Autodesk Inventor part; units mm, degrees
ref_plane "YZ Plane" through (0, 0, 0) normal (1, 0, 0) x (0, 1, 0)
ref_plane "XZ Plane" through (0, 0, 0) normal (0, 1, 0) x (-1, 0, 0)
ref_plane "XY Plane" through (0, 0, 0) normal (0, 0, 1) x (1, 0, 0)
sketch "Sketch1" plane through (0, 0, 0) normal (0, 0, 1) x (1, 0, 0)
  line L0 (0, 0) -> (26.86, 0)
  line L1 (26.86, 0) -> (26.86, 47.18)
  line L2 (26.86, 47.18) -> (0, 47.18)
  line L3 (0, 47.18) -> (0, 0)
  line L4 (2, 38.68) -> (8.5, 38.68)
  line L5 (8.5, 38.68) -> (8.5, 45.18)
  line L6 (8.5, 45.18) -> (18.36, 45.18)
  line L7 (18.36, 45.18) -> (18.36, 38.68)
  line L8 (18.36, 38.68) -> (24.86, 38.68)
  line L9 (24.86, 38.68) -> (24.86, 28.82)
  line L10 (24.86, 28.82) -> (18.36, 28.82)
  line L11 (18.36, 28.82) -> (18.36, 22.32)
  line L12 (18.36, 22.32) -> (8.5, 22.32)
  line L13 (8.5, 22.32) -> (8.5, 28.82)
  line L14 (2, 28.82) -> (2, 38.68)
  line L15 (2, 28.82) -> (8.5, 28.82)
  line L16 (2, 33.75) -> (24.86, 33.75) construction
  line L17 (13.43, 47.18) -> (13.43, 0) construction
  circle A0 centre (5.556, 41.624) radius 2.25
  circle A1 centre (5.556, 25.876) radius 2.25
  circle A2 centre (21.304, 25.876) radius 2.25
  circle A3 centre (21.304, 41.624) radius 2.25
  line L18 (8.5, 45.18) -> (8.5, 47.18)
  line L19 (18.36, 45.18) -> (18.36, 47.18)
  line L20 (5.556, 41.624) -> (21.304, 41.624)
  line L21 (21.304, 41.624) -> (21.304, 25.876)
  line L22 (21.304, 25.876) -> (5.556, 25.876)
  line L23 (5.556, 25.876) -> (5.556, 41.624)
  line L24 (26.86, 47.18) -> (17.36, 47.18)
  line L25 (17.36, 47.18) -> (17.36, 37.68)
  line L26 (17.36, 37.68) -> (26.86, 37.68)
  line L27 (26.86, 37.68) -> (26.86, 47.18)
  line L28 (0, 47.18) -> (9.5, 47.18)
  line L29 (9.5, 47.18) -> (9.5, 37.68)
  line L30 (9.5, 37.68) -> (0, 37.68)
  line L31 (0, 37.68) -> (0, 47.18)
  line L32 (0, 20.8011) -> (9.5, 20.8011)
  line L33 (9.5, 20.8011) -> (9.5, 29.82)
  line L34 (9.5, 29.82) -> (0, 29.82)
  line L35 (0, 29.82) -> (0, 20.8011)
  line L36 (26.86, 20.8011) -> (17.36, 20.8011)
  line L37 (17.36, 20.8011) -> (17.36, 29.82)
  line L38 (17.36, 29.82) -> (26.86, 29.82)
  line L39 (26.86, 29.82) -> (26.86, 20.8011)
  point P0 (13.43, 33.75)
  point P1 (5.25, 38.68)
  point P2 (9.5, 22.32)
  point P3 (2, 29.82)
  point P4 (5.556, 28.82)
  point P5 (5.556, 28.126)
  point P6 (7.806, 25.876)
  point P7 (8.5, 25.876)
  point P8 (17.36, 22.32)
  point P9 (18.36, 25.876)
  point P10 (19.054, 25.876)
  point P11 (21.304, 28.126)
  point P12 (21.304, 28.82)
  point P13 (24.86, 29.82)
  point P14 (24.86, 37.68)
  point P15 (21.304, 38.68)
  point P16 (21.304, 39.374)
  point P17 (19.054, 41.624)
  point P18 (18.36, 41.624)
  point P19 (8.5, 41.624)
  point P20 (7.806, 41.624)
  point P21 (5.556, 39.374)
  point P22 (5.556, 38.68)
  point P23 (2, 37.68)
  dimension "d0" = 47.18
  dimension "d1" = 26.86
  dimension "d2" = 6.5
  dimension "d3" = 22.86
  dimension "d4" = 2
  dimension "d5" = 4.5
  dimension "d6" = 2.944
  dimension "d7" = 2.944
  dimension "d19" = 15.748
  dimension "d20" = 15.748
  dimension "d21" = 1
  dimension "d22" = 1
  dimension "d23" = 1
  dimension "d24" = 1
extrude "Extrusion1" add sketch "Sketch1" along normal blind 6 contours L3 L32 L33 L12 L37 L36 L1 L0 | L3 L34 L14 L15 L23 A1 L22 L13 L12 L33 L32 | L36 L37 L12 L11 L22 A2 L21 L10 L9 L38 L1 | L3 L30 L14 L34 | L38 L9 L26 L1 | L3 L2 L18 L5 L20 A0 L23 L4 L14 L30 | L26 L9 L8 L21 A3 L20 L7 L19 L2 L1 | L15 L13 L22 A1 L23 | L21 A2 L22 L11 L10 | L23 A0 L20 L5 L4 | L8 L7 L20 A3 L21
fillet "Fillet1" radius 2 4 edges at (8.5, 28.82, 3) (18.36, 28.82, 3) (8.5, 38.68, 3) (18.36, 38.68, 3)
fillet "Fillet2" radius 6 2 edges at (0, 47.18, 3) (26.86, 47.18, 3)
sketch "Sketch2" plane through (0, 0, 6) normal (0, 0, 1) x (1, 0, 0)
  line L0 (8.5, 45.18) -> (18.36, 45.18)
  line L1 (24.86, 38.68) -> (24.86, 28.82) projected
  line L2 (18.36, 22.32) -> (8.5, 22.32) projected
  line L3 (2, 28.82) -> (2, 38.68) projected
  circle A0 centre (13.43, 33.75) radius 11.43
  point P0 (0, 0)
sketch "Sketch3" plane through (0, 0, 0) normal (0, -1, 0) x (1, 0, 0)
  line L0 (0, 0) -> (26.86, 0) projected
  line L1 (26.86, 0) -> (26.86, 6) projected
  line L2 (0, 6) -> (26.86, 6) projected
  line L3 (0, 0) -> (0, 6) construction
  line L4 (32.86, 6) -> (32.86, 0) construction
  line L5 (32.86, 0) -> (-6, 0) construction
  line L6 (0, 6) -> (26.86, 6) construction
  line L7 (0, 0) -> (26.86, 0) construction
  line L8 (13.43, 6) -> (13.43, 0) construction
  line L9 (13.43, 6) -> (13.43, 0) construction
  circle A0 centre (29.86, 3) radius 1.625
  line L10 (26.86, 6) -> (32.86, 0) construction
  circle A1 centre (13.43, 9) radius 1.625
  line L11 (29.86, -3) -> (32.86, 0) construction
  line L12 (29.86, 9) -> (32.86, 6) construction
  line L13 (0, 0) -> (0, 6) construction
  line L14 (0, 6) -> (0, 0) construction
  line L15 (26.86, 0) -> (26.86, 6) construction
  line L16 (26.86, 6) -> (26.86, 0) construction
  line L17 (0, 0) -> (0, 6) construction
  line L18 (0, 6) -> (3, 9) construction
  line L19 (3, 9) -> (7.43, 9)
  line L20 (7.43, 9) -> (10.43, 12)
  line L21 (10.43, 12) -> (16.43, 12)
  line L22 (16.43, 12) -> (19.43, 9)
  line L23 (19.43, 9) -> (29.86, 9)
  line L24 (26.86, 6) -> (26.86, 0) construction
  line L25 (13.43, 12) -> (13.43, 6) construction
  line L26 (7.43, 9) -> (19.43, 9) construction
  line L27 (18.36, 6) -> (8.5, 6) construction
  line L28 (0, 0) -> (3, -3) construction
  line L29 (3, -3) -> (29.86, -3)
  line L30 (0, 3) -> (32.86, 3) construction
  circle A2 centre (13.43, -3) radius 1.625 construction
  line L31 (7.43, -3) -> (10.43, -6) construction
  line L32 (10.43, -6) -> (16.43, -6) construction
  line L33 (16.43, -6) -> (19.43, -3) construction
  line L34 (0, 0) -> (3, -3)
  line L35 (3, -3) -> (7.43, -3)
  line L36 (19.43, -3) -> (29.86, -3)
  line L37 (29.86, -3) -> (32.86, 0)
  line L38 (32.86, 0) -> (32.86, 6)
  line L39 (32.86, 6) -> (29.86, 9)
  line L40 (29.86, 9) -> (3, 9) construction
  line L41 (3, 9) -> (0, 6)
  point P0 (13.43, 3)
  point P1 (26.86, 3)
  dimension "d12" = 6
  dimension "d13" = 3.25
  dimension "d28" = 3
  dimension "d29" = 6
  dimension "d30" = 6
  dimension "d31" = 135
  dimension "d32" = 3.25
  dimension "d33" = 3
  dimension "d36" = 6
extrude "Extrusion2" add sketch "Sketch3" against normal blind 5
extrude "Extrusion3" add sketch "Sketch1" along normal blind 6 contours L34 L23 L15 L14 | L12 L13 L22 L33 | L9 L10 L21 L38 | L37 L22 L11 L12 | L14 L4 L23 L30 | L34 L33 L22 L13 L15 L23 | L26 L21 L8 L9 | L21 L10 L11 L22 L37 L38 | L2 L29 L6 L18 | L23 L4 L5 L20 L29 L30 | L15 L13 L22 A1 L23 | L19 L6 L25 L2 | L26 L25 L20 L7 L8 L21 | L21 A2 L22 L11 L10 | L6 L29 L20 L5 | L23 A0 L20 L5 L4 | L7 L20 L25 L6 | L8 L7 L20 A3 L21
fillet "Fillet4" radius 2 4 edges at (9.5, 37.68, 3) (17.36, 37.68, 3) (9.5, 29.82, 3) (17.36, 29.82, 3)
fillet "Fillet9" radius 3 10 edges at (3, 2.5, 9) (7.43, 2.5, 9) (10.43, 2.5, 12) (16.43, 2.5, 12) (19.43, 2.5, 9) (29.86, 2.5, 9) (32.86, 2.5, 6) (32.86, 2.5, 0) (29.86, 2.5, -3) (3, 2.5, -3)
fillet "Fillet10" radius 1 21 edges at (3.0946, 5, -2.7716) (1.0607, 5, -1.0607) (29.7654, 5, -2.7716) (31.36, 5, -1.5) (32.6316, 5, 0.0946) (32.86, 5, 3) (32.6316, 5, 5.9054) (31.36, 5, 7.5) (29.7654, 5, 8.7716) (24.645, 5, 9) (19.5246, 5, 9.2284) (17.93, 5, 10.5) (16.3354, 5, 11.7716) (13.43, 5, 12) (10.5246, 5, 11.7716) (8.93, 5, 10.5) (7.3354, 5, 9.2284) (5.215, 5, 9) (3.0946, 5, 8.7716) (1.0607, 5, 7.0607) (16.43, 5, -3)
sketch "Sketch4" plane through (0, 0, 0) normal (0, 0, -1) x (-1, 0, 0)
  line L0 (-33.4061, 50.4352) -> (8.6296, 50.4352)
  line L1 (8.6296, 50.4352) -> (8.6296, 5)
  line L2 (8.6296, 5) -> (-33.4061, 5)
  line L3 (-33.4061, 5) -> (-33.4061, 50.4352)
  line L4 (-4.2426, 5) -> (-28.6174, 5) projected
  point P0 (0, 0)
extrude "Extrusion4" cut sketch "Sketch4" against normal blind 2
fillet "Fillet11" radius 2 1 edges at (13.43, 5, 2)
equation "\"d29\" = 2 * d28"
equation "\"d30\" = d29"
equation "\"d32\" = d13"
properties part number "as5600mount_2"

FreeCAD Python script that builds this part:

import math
import FreeCAD as App
import Part
import Sketcher


def edges_at(feature, points):
    """Names of the edges that pass closest to the given points."""
    edges = feature.Shape.Edges
    near = lambda p: min(range(len(edges)), key=lambda i: edges[i].distToShape(Part.Vertex(*p))[0])
    return sorted({f"Edge{near(p) + 1}" for p in points})

doc = App.newDocument("Part")
params = doc.addObject("Spreadsheet::Sheet", "Params")
for row, (alias, value) in enumerate([
    ("sketch1_diameter", "4.5 mm"),
    ("sketch1_width", "6.5 mm"),
    ("sketch1_width2", "26.86 mm"),
    ("sketch1_height", "47.18 mm"),
    ("pad1_length", "6 mm"),
    ("fillet_radius", "2 mm"),
    ("fillet2_radius", "6 mm"),
    ("sketch2_diameter", "3.25 mm"),
    ("sketch2_width", "6 mm"),
    ("sketch2_width2", "26.86 mm"),
    ("sketch2_width3", "10.43 mm"),
    ("pad2_length", "5 mm"),
    ("sketch3_width", "1 mm"),
    ("sketch3_radius", "2.25 mm"),
    ("sketch3_height", "9.5 mm"),
    ("pad3_length", "6 mm"),
    ("fillet3_radius", "2 mm"),
    ("fillet4_radius", "3 mm"),
    ("fillet5_radius", "1 mm"),
    ("pocket1_length", "2 mm"),
    ("fillet6_radius", "2 mm"),
], start=1):
    params.set(f"A{row}", alias)
    params.set(f"B{row}", "=" + value)
    params.setAlias(f"B{row}", alias)

body = doc.addObject("PartDesign::Body", "Body")

# Sketch on XY plane
sketch1 = body.newObject("Sketcher::SketchObject", "Sketch")
sketch1.AttachmentSupport = (doc.getObject("XY_Plane"), [""])
sketch1.MapMode = "FlatFace"
sketch1.addGeometry([
    Part.LineSegment(App.Vector(0, 0, 0), App.Vector(26.9, 0, 0)),  # 0
    Part.LineSegment(App.Vector(26.9, 0, 0), App.Vector(26.9, 47.2, 0)),  # 1
    Part.LineSegment(App.Vector(26.9, 47.2, 0), App.Vector(18.4, 47.2, 0)),  # 2
    Part.LineSegment(App.Vector(18.4, 47.2, 0), App.Vector(18.4, 38.7, 0)),  # 3
    Part.LineSegment(App.Vector(18.4, 38.7, 0), App.Vector(24.9, 38.7, 0)),  # 4
    Part.LineSegment(App.Vector(24.9, 38.7, 0), App.Vector(24.9, 28.8, 0)),  # 5
    Part.LineSegment(App.Vector(24.9, 28.8, 0), App.Vector(18.4, 28.8, 0)),  # 6
    Part.LineSegment(App.Vector(18.4, 28.8, 0), App.Vector(18.4, 22.3, 0)),  # 7
    Part.LineSegment(App.Vector(18.4, 22.3, 0), App.Vector(8.5, 22.3, 0)),  # 8
    Part.LineSegment(App.Vector(8.5, 22.3, 0), App.Vector(8.5, 28.8, 0)),  # 9
    Part.LineSegment(App.Vector(8.5, 28.8, 0), App.Vector(2, 28.8, 0)),  # 10
    Part.LineSegment(App.Vector(2, 28.8, 0), App.Vector(2, 38.7, 0)),  # 11
    Part.LineSegment(App.Vector(2, 38.7, 0), App.Vector(8.5, 38.7, 0)),  # 12
    Part.LineSegment(App.Vector(8.5, 38.7, 0), App.Vector(8.5, 47.2, 0)),  # 13
    Part.LineSegment(App.Vector(8.5, 47.2, 0), App.Vector(0, 47.2, 0)),  # 14
    Part.LineSegment(App.Vector(0, 47.2, 0), App.Vector(0, 0, 0)),  # 15
    Part.Circle(App.Vector(5.6, 25.9, 0), App.Vector(0, 0, 1), 2.2),  # 16
    Part.Circle(App.Vector(21.3, 25.9, 0), App.Vector(0, 0, 1), 2.2),  # 17
    Part.Circle(App.Vector(5.6, 41.6, 0), App.Vector(0, 0, 1), 2.2),  # 18
    Part.Circle(App.Vector(21.3, 41.6, 0), App.Vector(0, 0, 1), 2.2),  # 19
], False)
sketch1.addConstraint([
    Sketcher.Constraint("Coincident", 0, 2, 1, 1),
    Sketcher.Constraint("Coincident", 1, 2, 2, 1),
    Sketcher.Constraint("Coincident", 2, 2, 3, 1),
    Sketcher.Constraint("Coincident", 3, 2, 4, 1),
    Sketcher.Constraint("Coincident", 4, 2, 5, 1),
    Sketcher.Constraint("Coincident", 5, 2, 6, 1),
    Sketcher.Constraint("Coincident", 6, 2, 7, 1),
    Sketcher.Constraint("Coincident", 7, 2, 8, 1),
    Sketcher.Constraint("Coincident", 8, 2, 9, 1),
    Sketcher.Constraint("Coincident", 9, 2, 10, 1),
    Sketcher.Constraint("Coincident", 10, 2, 11, 1),
    Sketcher.Constraint("Coincident", 11, 2, 12, 1),
    Sketcher.Constraint("Coincident", 12, 2, 13, 1),
    Sketcher.Constraint("Coincident", 13, 2, 14, 1),
    Sketcher.Constraint("Coincident", 14, 2, 15, 1),
    Sketcher.Constraint("Coincident", 15, 2, 0, 1),
    Sketcher.Constraint("Horizontal", 0),
    Sketcher.Constraint("Vertical", 1),
    Sketcher.Constraint("Horizontal", 2),
    Sketcher.Constraint("Vertical", 3),
    Sketcher.Constraint("Horizontal", 4),
    Sketcher.Constraint("Vertical", 5),
    Sketcher.Constraint("Horizontal", 6),
    Sketcher.Constraint("Vertical", 7),
    Sketcher.Constraint("Horizontal", 8),
    Sketcher.Constraint("Vertical", 9),
    Sketcher.Constraint("Horizontal", 10),
    Sketcher.Constraint("Vertical", 11),
    Sketcher.Constraint("Horizontal", 12),
    Sketcher.Constraint("Vertical", 13),
    Sketcher.Constraint("Horizontal", 14),
    Sketcher.Constraint("Vertical", 15),
    Sketcher.Constraint("Coincident", 15, 2, -1, 1),
    Sketcher.Constraint("Equal", 16, 17),
    Sketcher.Constraint("Equal", 17, 18),
    Sketcher.Constraint("Equal", 18, 19),
    Sketcher.Constraint("Horizontal", 16, 3, 17, 3),
    Sketcher.Constraint("Horizontal", 18, 3, 19, 3),
    Sketcher.Constraint("Horizontal", 6, 2, 9, 2),
    Sketcher.Constraint("Horizontal", 4, 2, 11, 2),
    Sketcher.Constraint("Horizontal", 2, 2, 13, 2),
    Sketcher.Constraint("Vertical", 16, 3, 18, 3),
    Sketcher.Constraint("Vertical", 17, 3, 19, 3),
    Sketcher.Constraint("Vertical", 3, 2, 6, 2),
    Sketcher.Constraint("Vertical", 9, 2, 12, 2),
    Sketcher.Constraint("Equal", 6, 10),
    Sketcher.Constraint("Equal", 2, 14),
    Sketcher.Constraint("Equal", 14, 3),
    Sketcher.Constraint("Equal", 8, 5),
    Sketcher.Constraint("Equal", 12, 7),
    Sketcher.Constraint("Diameter", 16, 4.5),
    Sketcher.Constraint("DistanceX", 4, 1, 4, 2, 6.5),
    Sketcher.Constraint("DistanceX", -1, 1, 10, 2, 2.0),
    Sketcher.Constraint("DistanceX", 0, 1, 0, 2, 26.86),
    Sketcher.Constraint("DistanceY", 1, 1, 1, 2, 47.18),
    Sketcher.Constraint("DistanceX", 16, 3, 17, 3, 15.748),
    Sketcher.Constraint("DistanceY", 16, 3, 18, 3, 15.748),
    Sketcher.Constraint("DistanceX", 2, 2, 19, 3, 2.944),
    Sketcher.Constraint("DistanceY", 3, 2, 19, 3, 2.944),
])
sketch1.setExpression("Constraints[50]", "Params.sketch1_diameter")
sketch1.setExpression("Constraints[51]", "Params.sketch1_width")
sketch1.setExpression("Constraints[53]", "Params.sketch1_width2")
sketch1.setExpression("Constraints[54]", "Params.sketch1_height")
pad1 = body.newObject("PartDesign::Pad", "Pad")
pad1.Profile = sketch1
pad1.setExpression("Length", "Params.pad1_length")
doc.recompute()

fillet = body.newObject("PartDesign::Fillet", "Fillet")
fillet.Base = (pad1, edges_at(pad1, [
    (8.5, 28.82, 3),
    (18.36, 28.82, 3),
    (8.5, 38.68, 3),
    (18.36, 38.68, 3),
]))
fillet.setExpression("Radius", "Params.fillet_radius")
doc.recompute()

fillet2 = body.newObject("PartDesign::Fillet", "Fillet001")
fillet2.Base = (fillet, edges_at(fillet, [(0, 47.18, 3), (26.86, 47.18, 3)]))
fillet2.setExpression("Radius", "Params.fillet2_radius")

# Sketch on XZ plane
sketch2 = body.newObject("Sketcher::SketchObject", "Sketch001")
sketch2.AttachmentSupport = (doc.getObject("XZ_Plane"), [""])
sketch2.MapMode = "FlatFace"
sketch2.addGeometry([
    Part.LineSegment(App.Vector(26.9, 0, 0), App.Vector(0, 0, 0)),  # 0
    Part.LineSegment(App.Vector(0, 0, 0), App.Vector(3, -3, 0)),  # 1
    Part.LineSegment(App.Vector(3, -3, 0), App.Vector(29.9, -3, 0)),  # 2
    Part.LineSegment(App.Vector(29.9, -3, 0), App.Vector(32.9, 0, 0)),  # 3
    Part.LineSegment(App.Vector(32.9, 0, 0), App.Vector(32.9, 6, 0)),  # 4
    Part.LineSegment(App.Vector(32.9, 6, 0), App.Vector(29.9, 9, 0)),  # 5
    Part.LineSegment(App.Vector(29.9, 9, 0), App.Vector(19.4, 9, 0)),  # 6
    Part.LineSegment(App.Vector(19.4, 9, 0), App.Vector(16.4, 12, 0)),  # 7
    Part.LineSegment(App.Vector(16.4, 12, 0), App.Vector(10.4, 12, 0)),  # 8
    Part.LineSegment(App.Vector(10.4, 12, 0), App.Vector(7.4, 9, 0)),  # 9
    Part.LineSegment(App.Vector(7.4, 9, 0), App.Vector(3, 9, 0)),  # 10
    Part.LineSegment(App.Vector(3, 9, 0), App.Vector(0, 6, 0)),  # 11
    Part.LineSegment(App.Vector(0, 6, 0), App.Vector(26.9, 6, 0)),  # 12
    Part.LineSegment(App.Vector(26.9, 6, 0), App.Vector(26.9, 0, 0)),  # 13
    Part.Circle(App.Vector(29.9, 3, 0), App.Vector(0, 0, 1), 1.6),  # 14
    Part.Circle(App.Vector(13.4, 9, 0), App.Vector(0, 0, 1), 1.6),  # 15
], False)
sketch2.addConstraint([
    Sketcher.Constraint("Coincident", 0, 2, 1, 1),
    Sketcher.Constraint("Coincident", 1, 2, 2, 1),
    Sketcher.Constraint("Coincident", 2, 2, 3, 1),
    Sketcher.Constraint("Coincident", 3, 2, 4, 1),
    Sketcher.Constraint("Coincident", 4, 2, 5, 1),
    Sketcher.Constraint("Coincident", 5, 2, 6, 1),
    Sketcher.Constraint("Coincident", 6, 2, 7, 1),
    Sketcher.Constraint("Coincident", 7, 2, 8, 1),
    Sketcher.Constraint("Coincident", 8, 2, 9, 1),
    Sketcher.Constraint("Coincident", 9, 2, 10, 1),
    Sketcher.Constraint("Coincident", 10, 2, 11, 1),
    Sketcher.Constraint("Coincident", 11, 2, 12, 1),
    Sketcher.Constraint("Coincident", 12, 2, 13, 1),
    Sketcher.Constraint("Coincident", 13, 2, 0, 1),
    Sketcher.Constraint("Horizontal", 0),
    Sketcher.Constraint("Horizontal", 2),
    Sketcher.Constraint("Vertical", 4),
    Sketcher.Constraint("Horizontal", 6),
    Sketcher.Constraint("Horizontal", 8),
    Sketcher.Constraint("Horizontal", 10),
    Sketcher.Constraint("Horizontal", 12),
    Sketcher.Constraint("Vertical", 13),
    Sketcher.Constraint("Coincident", 0, 2, -1, 1),
    Sketcher.Constraint("Equal", 14, 15),
    Sketcher.Constraint("PointOnObject", 3, 2, -1),
    Sketcher.Constraint("PointOnObject", 11, 2, -2),
    Sketcher.Constraint("Perpendicular", 1, 3),
    Sketcher.Constraint("Perpendicular", 3, 5),
    Sketcher.Constraint("Parallel", 5, 7),
    Sketcher.Constraint("Perpendicular", 7, 9),
    Sketcher.Constraint("Parallel", 9, 11),
    Sketcher.Constraint("Horizontal", 15, 3, 5, 2),
    Sketcher.Constraint("Horizontal", 6, 2, 9, 2),
    Sketcher.Constraint("Horizontal", 4, 2, 11, 2),
    Sketcher.Constraint("Vertical", 14, 3, 2, 2),
    Sketcher.Constraint("Vertical", 2, 2, 5, 2),
    Sketcher.Constraint("Vertical", 1, 2, 10, 2),
    Sketcher.Constraint("Equal", 0, 2),
    Sketcher.Constraint("Equal", 8, 4),
    Sketcher.Constraint("Equal", 5, 7),
    Sketcher.Constraint("Diameter", 14, 3.25),
    Sketcher.Constraint("DistanceX", 8, 2, 8, 1, 6.0),
    Sketcher.Constraint("DistanceY", -1, 1, 14, 3, 3.0),
    Sketcher.Constraint("DistanceX", -1, 1, 1, 2, 3.0),
    Sketcher.Constraint("DistanceX", 15, 3, 6, 2, 6.0),
    Sketcher.Constraint("DistanceX", 0, 2, 0, 1, 26.86),
    Sketcher.Constraint("DistanceX", 6, 2, 6, 1, 10.43),
])
sketch2.setExpression("Constraints[40]", "Params.sketch2_diameter")
sketch2.setExpression("Constraints[41]", "Params.sketch2_width")
sketch2.setExpression("Constraints[45]", "Params.sketch2_width2")
sketch2.setExpression("Constraints[46]", "Params.sketch2_width3")
pad2 = body.newObject("PartDesign::Pad", "Pad001")
pad2.Profile = sketch2
pad2.setExpression("Length", "Params.pad2_length")
pad2.Reversed = True

# Sketch on XY plane
sketch3 = body.newObject("Sketcher::SketchObject", "Sketch002")
sketch3.AttachmentSupport = (doc.getObject("XY_Plane"), [""])
sketch3.MapMode = "FlatFace"
sketch3.addGeometry([
    Part.LineSegment(App.Vector(2, 29.8, 0), App.Vector(2, 28.8, 0)),  # 0
    Part.LineSegment(App.Vector(2, 28.8, 0), App.Vector(5.6, 28.8, 0)),  # 1
    Part.LineSegment(App.Vector(5.6, 28.8, 0), App.Vector(5.6, 28.1, 0)),  # 2
    Part.ArcOfCircle(Part.Circle(App.Vector(5.6, 25.9, 0), App.Vector(0, 0, 1), 2.2), math.radians(0), math.radians(90)),  # 3
    Part.LineSegment(App.Vector(7.8, 25.9, 0), App.Vector(8.5, 25.9, 0)),  # 4
    Part.LineSegment(App.Vector(8.5, 25.9, 0), App.Vector(8.5, 22.3, 0)),  # 5
    Part.LineSegment(App.Vector(8.5, 22.3, 0), App.Vector(9.5, 22.3, 0)),  # 6
    Part.LineSegment(App.Vector(9.5, 22.3, 0), App.Vector(9.5, 29.8, 0)),  # 7
    Part.LineSegment(App.Vector(9.5, 29.8, 0), App.Vector(2, 29.8, 0)),  # 8
    Part.LineSegment(App.Vector(24.9, 28.8, 0), App.Vector(24.9, 29.8, 0)),  # 9
    Part.LineSegment(App.Vector(24.9, 29.8, 0), App.Vector(17.4, 29.8, 0)),  # 10
    Part.LineSegment(App.Vector(17.4, 29.8, 0), App.Vector(17.4, 22.3, 0)),  # 11
    Part.LineSegment(App.Vector(17.4, 22.3, 0), App.Vector(18.4, 22.3, 0)),  # 12
    Part.LineSegment(App.Vector(18.4, 22.3, 0), App.Vector(18.4, 25.9, 0)),  # 13
    Part.LineSegment(App.Vector(18.4, 25.9, 0), App.Vector(19.1, 25.9, 0)),  # 14
    Part.ArcOfCircle(Part.Circle(App.Vector(21.3, 25.9, 0), App.Vector(0, 0, 1), 2.2), math.radians(90), math.radians(180)),  # 15
    Part.LineSegment(App.Vector(21.3, 28.1, 0), App.Vector(21.3, 28.8, 0)),  # 16
    Part.LineSegment(App.Vector(21.3, 28.8, 0), App.Vector(24.9, 28.8, 0)),  # 17
    Part.LineSegment(App.Vector(2, 38.7, 0), App.Vector(2, 37.7, 0)),  # 18
    Part.LineSegment(App.Vector(2, 37.7, 0), App.Vector(9.5, 37.7, 0)),  # 19
    Part.LineSegment(App.Vector(9.5, 37.7, 0), App.Vector(9.5, 47.2, 0)),  # 20
    Part.LineSegment(App.Vector(9.5, 47.2, 0), App.Vector(8.5, 47.2, 0)),  # 21
    Part.LineSegment(App.Vector(8.5, 47.2, 0), App.Vector(8.5, 41.6, 0)),  # 22
    Part.LineSegment(App.Vector(8.5, 41.6, 0), App.Vector(7.8, 41.6, 0)),  # 23
    Part.ArcOfCircle(Part.Circle(App.Vector(5.6, 41.6, 0), App.Vector(0, 0, 1), 2.2), math.radians(-90), math.radians(0)),  # 24
    Part.LineSegment(App.Vector(5.6, 39.4, 0), App.Vector(5.6, 38.7, 0)),  # 25
    Part.LineSegment(App.Vector(5.6, 38.7, 0), App.Vector(2, 38.7, 0)),  # 26
    Part.LineSegment(App.Vector(24.9, 37.7, 0), App.Vector(24.9, 38.7, 0)),  # 27
    Part.LineSegment(App.Vector(24.9, 38.7, 0), App.Vector(21.3, 38.7, 0)),  # 28
    Part.LineSegment(App.Vector(21.3, 38.7, 0), App.Vector(21.3, 39.4, 0)),  # 29
    Part.ArcOfCircle(Part.Circle(App.Vector(21.3, 41.6, 0), App.Vector(0, 0, 1), 2.2), math.radians(180), math.radians(270)),  # 30
    Part.LineSegment(App.Vector(19.1, 41.6, 0), App.Vector(18.4, 41.6, 0)),  # 31
    Part.LineSegment(App.Vector(18.4, 41.6, 0), App.Vector(18.4, 47.2, 0)),  # 32
    Part.LineSegment(App.Vector(18.4, 47.2, 0), App.Vector(17.4, 47.2, 0)),  # 33
    Part.LineSegment(App.Vector(17.4, 47.2, 0), App.Vector(17.4, 37.7, 0)),  # 34
    Part.LineSegment(App.Vector(17.4, 37.7, 0), App.Vector(24.9, 37.7, 0)),  # 35
], False)
sketch3.addConstraint([
    Sketcher.Constraint("Coincident", 0, 2, 1, 1),
    Sketcher.Constraint("Coincident", 1, 2, 2, 1),
    Sketcher.Constraint("Coincident", 2, 2, 3, 2),
    Sketcher.Constraint("Coincident", 3, 1, 4, 1),
    Sketcher.Constraint("Coincident", 4, 2, 5, 1),
    Sketcher.Constraint("Coincident", 5, 2, 6, 1),
    Sketcher.Constraint("Coincident", 6, 2, 7, 1),
    Sketcher.Constraint("Coincident", 7, 2, 8, 1),
    Sketcher.Constraint("Coincident", 8, 2, 0, 1),
    Sketcher.Constraint("Coincident", 9, 2, 10, 1),
    Sketcher.Constraint("Coincident", 10, 2, 11, 1),
    Sketcher.Constraint("Coincident", 11, 2, 12, 1),
    Sketcher.Constraint("Coincident", 12, 2, 13, 1),
    Sketcher.Constraint("Coincident", 13, 2, 14, 1),
    Sketcher.Constraint("Coincident", 14, 2, 15, 2),
    Sketcher.Constraint("Coincident", 15, 1, 16, 1),
    Sketcher.Constraint("Coincident", 16, 2, 17, 1),
    Sketcher.Constraint("Coincident", 17, 2, 9, 1),
    Sketcher.Constraint("Coincident", 18, 2, 19, 1),
    Sketcher.Constraint("Coincident", 19, 2, 20, 1),
    Sketcher.Constraint("Coincident", 20, 2, 21, 1),
    Sketcher.Constraint("Coincident", 21, 2, 22, 1),
    Sketcher.Constraint("Coincident", 22, 2, 23, 1),
    Sketcher.Constraint("Coincident", 23, 2, 24, 2),
    Sketcher.Constraint("Coincident", 24, 1, 25, 1),
    Sketcher.Constraint("Coincident", 25, 2, 26, 1),
    Sketcher.Constraint("Coincident", 26, 2, 18, 1),
    Sketcher.Constraint("Coincident", 27, 2, 28, 1),
    Sketcher.Constraint("Coincident", 28, 2, 29, 1),
    Sketcher.Constraint("Coincident", 29, 2, 30, 2),
    Sketcher.Constraint("Coincident", 30, 1, 31, 1),
    Sketcher.Constraint("Coincident", 31, 2, 32, 1),
    Sketcher.Constraint("Coincident", 32, 2, 33, 1),
    Sketcher.Constraint("Coincident", 33, 2, 34, 1),
    Sketcher.Constraint("Coincident", 34, 2, 35, 1),
    Sketcher.Constraint("Coincident", 35, 2, 27, 1),
    Sketcher.Constraint("Vertical", 0),
    Sketcher.Constraint("Horizontal", 1),
    Sketcher.Constraint("Vertical", 2),
    Sketcher.Constraint("Horizontal", 4),
    Sketcher.Constraint("Vertical", 5),
    Sketcher.Constraint("Horizontal", 6),
    Sketcher.Constraint("Vertical", 7),
    Sketcher.Constraint("Horizontal", 8),
    Sketcher.Constraint("Vertical", 9),
    Sketcher.Constraint("Horizontal", 10),
    Sketcher.Constraint("Vertical", 11),
    Sketcher.Constraint("Horizontal", 12),
    Sketcher.Constraint("Vertical", 13),
    Sketcher.Constraint("Horizontal", 14),
    Sketcher.Constraint("Vertical", 16),
    Sketcher.Constraint("Horizontal", 17),
    Sketcher.Constraint("Vertical", 18),
    Sketcher.Constraint("Horizontal", 19),
    Sketcher.Constraint("Vertical", 20),
    Sketcher.Constraint("Horizontal", 21),
    Sketcher.Constraint("Vertical", 22),
    Sketcher.Constraint("Horizontal", 23),
    Sketcher.Constraint("Vertical", 25),
    Sketcher.Constraint("Horizontal", 26),
    Sketcher.Constraint("Vertical", 27),
    Sketcher.Constraint("Horizontal", 28),
    Sketcher.Constraint("Vertical", 29),
    Sketcher.Constraint("Horizontal", 31),
    Sketcher.Constraint("Vertical", 32),
    Sketcher.Constraint("Horizontal", 33),
    Sketcher.Constraint("Vertical", 34),
    Sketcher.Constraint("Horizontal", 35),
    Sketcher.Constraint("Equal", 3, 15),
    Sketcher.Constraint("Equal", 15, 24),
    Sketcher.Constraint("Equal", 24, 30),
    Sketcher.Constraint("Horizontal", 3, 3, 15, 3),
    Sketcher.Constraint("Horizontal", 24, 3, 30, 3),
    Sketcher.Constraint("Horizontal", 15, 3, 3, 1),
    Sketcher.Constraint("Horizontal", 8, 2, 9, 2),
    Sketcher.Constraint("Horizontal", 6, 2, 11, 2),
    Sketcher.Constraint("Horizontal", 4, 2, 13, 2),
    Sketcher.Constraint("Horizontal", 1, 2, 16, 2),
    Sketcher.Constraint("Horizontal", 30, 3, 22, 2),
    Sketcher.Constraint("Horizontal", 26, 2, 27, 2),
    Sketcher.Constraint("Horizontal", 23, 2, 30, 1),
    Sketcher.Constraint("Horizontal", 21, 2, 32, 2),
    Sketcher.Constraint("Horizontal", 19, 2, 34, 2),
    Sketcher.Constraint("Vertical", 3, 3, 24, 3),
    Sketcher.Constraint("Vertical", 15, 3, 30, 3),
    Sketcher.Constraint("Vertical", 24, 3, 1, 2),
    Sketcher.Constraint("Vertical", 30, 3, 15, 1),
    Sketcher.Constraint("Vertical", 8, 2, 18, 2),
    Sketcher.Constraint("Vertical", 7, 2, 19, 2),
    Sketcher.Constraint("Vertical", 5, 2, 21, 2),
    Sketcher.Constraint("Vertical", 2, 2, 24, 1),
    Sketcher.Constraint("Vertical", 17, 2, 27, 2),
    Sketcher.Constraint("Vertical", 16, 2, 28, 2),
    Sketcher.Constraint("Vertical", 13, 2, 31, 2),
    Sketcher.Constraint("Vertical", 11, 2, 33, 2),
    Sketcher.Constraint("Equal", 8, 10),
    Sketcher.Constraint("Equal", 6, 12),
    Sketcher.Constraint("Equal", 4, 14),
    Sketcher.Constraint("Equal", 33, 0),
    Sketcher.Constraint("Equal", 31, 2),
    Sketcher.Constraint("Equal", 28, 5),
    Sketcher.Constraint("Equal", 9, 18),
    Sketcher.Constraint("Equal", 16, 25),
    Sketcher.Constraint("DistanceX", 6, 1, 6, 2, 1.0),
    Sketcher.Constraint("Radius", 3, 2.25),
    Sketcher.Constraint("DistanceX", -1, 1, 0, 2, 2.0),
    Sketcher.Constraint("DistanceX", 0, 2, 4, 2, 6.5),
    Sketcher.Constraint("DistanceY", -1, 1, 20, 2, 47.18),
    Sketcher.Constraint("DistanceY", 20, 1, 20, 2, 9.5),
    Sketcher.Constraint("DistanceX", 3, 3, 15, 3, 15.748),
    Sketcher.Constraint("DistanceY", 3, 3, 24, 3, 15.748),
    Sketcher.Constraint("DistanceY", 3, 3, 0, 2, 2.944),
])
sketch3.setExpression("Constraints[103]", "Params.sketch3_width")
sketch3.setExpression("Constraints[104]", "Params.sketch3_radius")
sketch3.setExpression("Constraints[108]", "Params.sketch3_height")
pad3 = body.newObject("PartDesign::Pad", "Pad002")
pad3.Profile = sketch3
pad3.setExpression("Length", "Params.pad3_length")
doc.recompute()

fillet3 = body.newObject("PartDesign::Fillet", "Fillet002")
fillet3.Base = (pad3, edges_at(pad3, [
    (9.5, 37.68, 3),
    (17.36, 37.68, 3),
    (9.5, 29.82, 3),
    (17.36, 29.82, 3),
]))
fillet3.setExpression("Radius", "Params.fillet3_radius")
doc.recompute()

fillet4 = body.newObject("PartDesign::Fillet", "Fillet003")
fillet4.Base = (fillet3, edges_at(fillet3, [
    (3, 2.5, 9),
    (7.43, 2.5, 9),
    (10.43, 2.5, 12),
    (16.43, 2.5, 12),
    (19.43, 2.5, 9),
    (29.86, 2.5, 9),
    (32.86, 2.5, 6),
    (32.86, 2.5, 0),
    (29.86, 2.5, -3),
    (3, 2.5, -3),
]))
fillet4.setExpression("Radius", "Params.fillet4_radius")
doc.recompute()

fillet5 = body.newObject("PartDesign::Fillet", "Fillet004")
fillet5.Base = (fillet4, edges_at(fillet4, [
    (3.095, 5, -2.772),
    (1.061, 5, -1.061),
    (29.765, 5, -2.772),
    (31.36, 5, -1.5),
    (32.632, 5, 0.095),
    (32.86, 5, 3),
    (32.632, 5, 5.905),
    (31.36, 5, 7.5),
    (29.765, 5, 8.772),
    (24.645, 5, 9),
    (19.525, 5, 9.228),
    (17.93, 5, 10.5),
    (16.335, 5, 11.772),
    (13.43, 5, 12),
    (10.525, 5, 11.772),
    (8.93, 5, 10.5),
    (7.335, 5, 9.228),
    (5.215, 5, 9),
    (3.095, 5, 8.772),
    (1.061, 5, 7.061),
    (16.43, 5, -3),
]))
fillet5.setExpression("Radius", "Params.fillet5_radius")

# Sketch on XY plane
sketch4 = body.newObject("Sketcher::SketchObject", "Sketch003")
sketch4.AttachmentSupport = (doc.getObject("XY_Plane"), [""])
sketch4.MapMode = "FlatFace"
sketch4.addGeometry([
    Part.LineSegment(App.Vector(-9, 50, 0), App.Vector(33, 50, 0)),
    Part.LineSegment(App.Vector(33, 50, 0), App.Vector(33, 5, 0)),
    Part.LineSegment(App.Vector(33, 5, 0), App.Vector(-9, 5, 0)),
    Part.LineSegment(App.Vector(-9, 5, 0), App.Vector(-9, 50, 0)),
], False)
sketch4.addConstraint([
    Sketcher.Constraint("Coincident", 0, 2, 1, 1),
    Sketcher.Constraint("Coincident", 1, 2, 2, 1),
    Sketcher.Constraint("Coincident", 2, 2, 3, 1),
    Sketcher.Constraint("Coincident", 3, 2, 0, 1),
    Sketcher.Constraint("Horizontal", 0),
    Sketcher.Constraint("Vertical", 1),
    Sketcher.Constraint("Horizontal", 2),
    Sketcher.Constraint("Vertical", 3),
    Sketcher.Constraint("DistanceY", -1, 1, 1, 2, 5.0),
    Sketcher.Constraint("DistanceX", 0, 1, 0, 2, 42.0357),
    Sketcher.Constraint("DistanceY", 1, 2, 1, 1, 45.4352),
    Sketcher.Constraint("DistanceX", -1, 1, 0, 2, 33.406),
])
pocket1 = body.newObject("PartDesign::Pocket", "Pocket")
pocket1.Profile = sketch4
pocket1.setExpression("Length", "Params.pocket1_length")
pocket1.Reversed = True
doc.recompute()

fillet6 = body.newObject("PartDesign::Fillet", "Fillet005")
fillet6.Base = (pocket1, edges_at(pocket1, [(13.43, 5, 2)]))
fillet6.setExpression("Radius", "Params.fillet6_radius")

doc.recompute()
